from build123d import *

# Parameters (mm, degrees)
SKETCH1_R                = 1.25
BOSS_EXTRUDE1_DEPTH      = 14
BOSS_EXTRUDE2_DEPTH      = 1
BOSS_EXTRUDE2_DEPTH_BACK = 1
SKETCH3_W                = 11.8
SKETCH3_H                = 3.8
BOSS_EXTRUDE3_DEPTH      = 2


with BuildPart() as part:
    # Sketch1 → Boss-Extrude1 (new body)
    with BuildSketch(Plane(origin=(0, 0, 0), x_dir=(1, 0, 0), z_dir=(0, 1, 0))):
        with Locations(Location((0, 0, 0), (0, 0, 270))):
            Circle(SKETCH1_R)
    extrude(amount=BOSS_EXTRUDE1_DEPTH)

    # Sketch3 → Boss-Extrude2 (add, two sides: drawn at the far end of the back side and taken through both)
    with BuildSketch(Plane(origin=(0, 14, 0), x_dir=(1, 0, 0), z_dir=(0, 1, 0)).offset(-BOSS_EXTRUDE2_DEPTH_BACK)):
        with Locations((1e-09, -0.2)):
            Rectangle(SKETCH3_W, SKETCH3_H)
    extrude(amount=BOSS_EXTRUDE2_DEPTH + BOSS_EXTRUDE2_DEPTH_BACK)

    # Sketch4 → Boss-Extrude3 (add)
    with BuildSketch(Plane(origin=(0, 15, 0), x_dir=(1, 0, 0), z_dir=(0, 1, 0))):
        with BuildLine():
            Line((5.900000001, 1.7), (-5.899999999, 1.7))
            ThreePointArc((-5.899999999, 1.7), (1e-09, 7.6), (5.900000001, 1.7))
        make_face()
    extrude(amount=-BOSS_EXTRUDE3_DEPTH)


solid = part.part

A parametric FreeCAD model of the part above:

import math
import FreeCAD as App
import Part
import Sketcher
Q = App.Units.Quantity

doc = App.newDocument("Part")
body = doc.addObject("PartDesign::Body", "Body")

# Sketch on XZ plane
sketch1 = body.newObject("Sketcher::SketchObject", "Sketch")
sketch1.AttachmentSupport = (doc.getObject("XZ_Plane"), [""])
sketch1.MapMode = "FlatFace"
sketch1.addGeometry(Part.Circle(App.Vector(0, 0, 0), App.Vector(0, 0, 1), 1.25), False)
sketch1.addConstraint([
    Sketcher.Constraint("Coincident", 0, 3, -1, 1),
    Sketcher.Constraint("Diameter", 0, Q("2.5 mm")),
])
pad1 = body.newObject("PartDesign::Pad", "Pad")
pad1.Profile = sketch1
pad1.Length = 14
pad1.Reversed = True

# Sketch on XZ plane
sketch2 = body.newObject("Sketcher::SketchObject", "Sketch001")
sketch2.AttachmentSupport = (doc.getObject("XZ_Plane"), [""])
sketch2.MapMode = "FlatFace"
sketch2.AttachmentOffset = App.Placement(App.Vector(0, 0, -14), App.Rotation())
sketch2.addGeometry([
    Part.LineSegment(App.Vector(-5.9, -1.7, 0), App.Vector(-5.9, 2.1, 0)),
    Part.LineSegment(App.Vector(-5.9, 2.1, 0), App.Vector(5.9, 2.1, 0)),
    Part.LineSegment(App.Vector(5.9, 2.1, 0), App.Vector(5.9, -1.7, 0)),
    Part.LineSegment(App.Vector(5.9, -1.7, 0), App.Vector(-5.9, -1.7, 0)),
], False)
sketch2.addConstraint([
    Sketcher.Constraint("Coincident", 0, 2, 1, 1),
    Sketcher.Constraint("Coincident", 1, 2, 2, 1),
    Sketcher.Constraint("Coincident", 2, 2, 3, 1),
    Sketcher.Constraint("Coincident", 3, 2, 0, 1),
    Sketcher.Constraint("Vertical", 0),
    Sketcher.Constraint("Horizontal", 1),
    Sketcher.Constraint("Vertical", 2),
    Sketcher.Constraint("Horizontal", 3),
    Sketcher.Constraint("DistanceX", 1, 1, 1, 2, Q("11.8 mm")),
    Sketcher.Constraint("DistanceY", 0, 1, 0, 2, Q("3.8 mm")),
    Sketcher.Constraint("DistanceX", 0, 2, -1, 1, Q("5.9 mm")),
    Sketcher.Constraint("DistanceY", -1, 1, 0, 2, Q("2.1 mm")),
])
pad2 = body.newObject("PartDesign::Pad", "Pad001")
pad2.Profile = sketch2
pad2.Type = "TwoLengths"
pad2.Length = 1
pad2.Length2 = 1
pad2.Reversed = True

# Sketch on XZ plane
sketch3 = body.newObject("Sketcher::SketchObject", "Sketch002")
sketch3.AttachmentSupport = (doc.getObject("XZ_Plane"), [""])
sketch3.MapMode = "FlatFace"
sketch3.AttachmentOffset = App.Placement(App.Vector(0, 0, -15), App.Rotation())
sketch3.addGeometry([
    Part.LineSegment(App.Vector(-5.9, -1.7, 0), App.Vector(5.9, -1.7, 0)),
    Part.ArcOfCircle(Part.Circle(App.Vector(0, -1.7, 0), App.Vector(0, 0, 1), 5.9), math.radians(180), math.radians(360)),
], False)
sketch3.addConstraint([
    Sketcher.Constraint("Coincident", 0, 1, 1, 1),
    Sketcher.Constraint("Coincident", 1, 2, 0, 2),
    Sketcher.Constraint("Horizontal", 0),
    Sketcher.Constraint("PointOnObject", 1, 3, -2),
    Sketcher.Constraint("Horizontal", 1, 3, 0, 1),
    Sketcher.Constraint("Radius", 1, Q("5.9 mm")),
    Sketcher.Constraint("DistanceY", 1, 3, -1, 1, Q("1.7 mm")),
])
pad3 = body.newObject("PartDesign::Pad", "Pad002")
pad3.Profile = sketch3
pad3.Length = 2

doc.recompute()
